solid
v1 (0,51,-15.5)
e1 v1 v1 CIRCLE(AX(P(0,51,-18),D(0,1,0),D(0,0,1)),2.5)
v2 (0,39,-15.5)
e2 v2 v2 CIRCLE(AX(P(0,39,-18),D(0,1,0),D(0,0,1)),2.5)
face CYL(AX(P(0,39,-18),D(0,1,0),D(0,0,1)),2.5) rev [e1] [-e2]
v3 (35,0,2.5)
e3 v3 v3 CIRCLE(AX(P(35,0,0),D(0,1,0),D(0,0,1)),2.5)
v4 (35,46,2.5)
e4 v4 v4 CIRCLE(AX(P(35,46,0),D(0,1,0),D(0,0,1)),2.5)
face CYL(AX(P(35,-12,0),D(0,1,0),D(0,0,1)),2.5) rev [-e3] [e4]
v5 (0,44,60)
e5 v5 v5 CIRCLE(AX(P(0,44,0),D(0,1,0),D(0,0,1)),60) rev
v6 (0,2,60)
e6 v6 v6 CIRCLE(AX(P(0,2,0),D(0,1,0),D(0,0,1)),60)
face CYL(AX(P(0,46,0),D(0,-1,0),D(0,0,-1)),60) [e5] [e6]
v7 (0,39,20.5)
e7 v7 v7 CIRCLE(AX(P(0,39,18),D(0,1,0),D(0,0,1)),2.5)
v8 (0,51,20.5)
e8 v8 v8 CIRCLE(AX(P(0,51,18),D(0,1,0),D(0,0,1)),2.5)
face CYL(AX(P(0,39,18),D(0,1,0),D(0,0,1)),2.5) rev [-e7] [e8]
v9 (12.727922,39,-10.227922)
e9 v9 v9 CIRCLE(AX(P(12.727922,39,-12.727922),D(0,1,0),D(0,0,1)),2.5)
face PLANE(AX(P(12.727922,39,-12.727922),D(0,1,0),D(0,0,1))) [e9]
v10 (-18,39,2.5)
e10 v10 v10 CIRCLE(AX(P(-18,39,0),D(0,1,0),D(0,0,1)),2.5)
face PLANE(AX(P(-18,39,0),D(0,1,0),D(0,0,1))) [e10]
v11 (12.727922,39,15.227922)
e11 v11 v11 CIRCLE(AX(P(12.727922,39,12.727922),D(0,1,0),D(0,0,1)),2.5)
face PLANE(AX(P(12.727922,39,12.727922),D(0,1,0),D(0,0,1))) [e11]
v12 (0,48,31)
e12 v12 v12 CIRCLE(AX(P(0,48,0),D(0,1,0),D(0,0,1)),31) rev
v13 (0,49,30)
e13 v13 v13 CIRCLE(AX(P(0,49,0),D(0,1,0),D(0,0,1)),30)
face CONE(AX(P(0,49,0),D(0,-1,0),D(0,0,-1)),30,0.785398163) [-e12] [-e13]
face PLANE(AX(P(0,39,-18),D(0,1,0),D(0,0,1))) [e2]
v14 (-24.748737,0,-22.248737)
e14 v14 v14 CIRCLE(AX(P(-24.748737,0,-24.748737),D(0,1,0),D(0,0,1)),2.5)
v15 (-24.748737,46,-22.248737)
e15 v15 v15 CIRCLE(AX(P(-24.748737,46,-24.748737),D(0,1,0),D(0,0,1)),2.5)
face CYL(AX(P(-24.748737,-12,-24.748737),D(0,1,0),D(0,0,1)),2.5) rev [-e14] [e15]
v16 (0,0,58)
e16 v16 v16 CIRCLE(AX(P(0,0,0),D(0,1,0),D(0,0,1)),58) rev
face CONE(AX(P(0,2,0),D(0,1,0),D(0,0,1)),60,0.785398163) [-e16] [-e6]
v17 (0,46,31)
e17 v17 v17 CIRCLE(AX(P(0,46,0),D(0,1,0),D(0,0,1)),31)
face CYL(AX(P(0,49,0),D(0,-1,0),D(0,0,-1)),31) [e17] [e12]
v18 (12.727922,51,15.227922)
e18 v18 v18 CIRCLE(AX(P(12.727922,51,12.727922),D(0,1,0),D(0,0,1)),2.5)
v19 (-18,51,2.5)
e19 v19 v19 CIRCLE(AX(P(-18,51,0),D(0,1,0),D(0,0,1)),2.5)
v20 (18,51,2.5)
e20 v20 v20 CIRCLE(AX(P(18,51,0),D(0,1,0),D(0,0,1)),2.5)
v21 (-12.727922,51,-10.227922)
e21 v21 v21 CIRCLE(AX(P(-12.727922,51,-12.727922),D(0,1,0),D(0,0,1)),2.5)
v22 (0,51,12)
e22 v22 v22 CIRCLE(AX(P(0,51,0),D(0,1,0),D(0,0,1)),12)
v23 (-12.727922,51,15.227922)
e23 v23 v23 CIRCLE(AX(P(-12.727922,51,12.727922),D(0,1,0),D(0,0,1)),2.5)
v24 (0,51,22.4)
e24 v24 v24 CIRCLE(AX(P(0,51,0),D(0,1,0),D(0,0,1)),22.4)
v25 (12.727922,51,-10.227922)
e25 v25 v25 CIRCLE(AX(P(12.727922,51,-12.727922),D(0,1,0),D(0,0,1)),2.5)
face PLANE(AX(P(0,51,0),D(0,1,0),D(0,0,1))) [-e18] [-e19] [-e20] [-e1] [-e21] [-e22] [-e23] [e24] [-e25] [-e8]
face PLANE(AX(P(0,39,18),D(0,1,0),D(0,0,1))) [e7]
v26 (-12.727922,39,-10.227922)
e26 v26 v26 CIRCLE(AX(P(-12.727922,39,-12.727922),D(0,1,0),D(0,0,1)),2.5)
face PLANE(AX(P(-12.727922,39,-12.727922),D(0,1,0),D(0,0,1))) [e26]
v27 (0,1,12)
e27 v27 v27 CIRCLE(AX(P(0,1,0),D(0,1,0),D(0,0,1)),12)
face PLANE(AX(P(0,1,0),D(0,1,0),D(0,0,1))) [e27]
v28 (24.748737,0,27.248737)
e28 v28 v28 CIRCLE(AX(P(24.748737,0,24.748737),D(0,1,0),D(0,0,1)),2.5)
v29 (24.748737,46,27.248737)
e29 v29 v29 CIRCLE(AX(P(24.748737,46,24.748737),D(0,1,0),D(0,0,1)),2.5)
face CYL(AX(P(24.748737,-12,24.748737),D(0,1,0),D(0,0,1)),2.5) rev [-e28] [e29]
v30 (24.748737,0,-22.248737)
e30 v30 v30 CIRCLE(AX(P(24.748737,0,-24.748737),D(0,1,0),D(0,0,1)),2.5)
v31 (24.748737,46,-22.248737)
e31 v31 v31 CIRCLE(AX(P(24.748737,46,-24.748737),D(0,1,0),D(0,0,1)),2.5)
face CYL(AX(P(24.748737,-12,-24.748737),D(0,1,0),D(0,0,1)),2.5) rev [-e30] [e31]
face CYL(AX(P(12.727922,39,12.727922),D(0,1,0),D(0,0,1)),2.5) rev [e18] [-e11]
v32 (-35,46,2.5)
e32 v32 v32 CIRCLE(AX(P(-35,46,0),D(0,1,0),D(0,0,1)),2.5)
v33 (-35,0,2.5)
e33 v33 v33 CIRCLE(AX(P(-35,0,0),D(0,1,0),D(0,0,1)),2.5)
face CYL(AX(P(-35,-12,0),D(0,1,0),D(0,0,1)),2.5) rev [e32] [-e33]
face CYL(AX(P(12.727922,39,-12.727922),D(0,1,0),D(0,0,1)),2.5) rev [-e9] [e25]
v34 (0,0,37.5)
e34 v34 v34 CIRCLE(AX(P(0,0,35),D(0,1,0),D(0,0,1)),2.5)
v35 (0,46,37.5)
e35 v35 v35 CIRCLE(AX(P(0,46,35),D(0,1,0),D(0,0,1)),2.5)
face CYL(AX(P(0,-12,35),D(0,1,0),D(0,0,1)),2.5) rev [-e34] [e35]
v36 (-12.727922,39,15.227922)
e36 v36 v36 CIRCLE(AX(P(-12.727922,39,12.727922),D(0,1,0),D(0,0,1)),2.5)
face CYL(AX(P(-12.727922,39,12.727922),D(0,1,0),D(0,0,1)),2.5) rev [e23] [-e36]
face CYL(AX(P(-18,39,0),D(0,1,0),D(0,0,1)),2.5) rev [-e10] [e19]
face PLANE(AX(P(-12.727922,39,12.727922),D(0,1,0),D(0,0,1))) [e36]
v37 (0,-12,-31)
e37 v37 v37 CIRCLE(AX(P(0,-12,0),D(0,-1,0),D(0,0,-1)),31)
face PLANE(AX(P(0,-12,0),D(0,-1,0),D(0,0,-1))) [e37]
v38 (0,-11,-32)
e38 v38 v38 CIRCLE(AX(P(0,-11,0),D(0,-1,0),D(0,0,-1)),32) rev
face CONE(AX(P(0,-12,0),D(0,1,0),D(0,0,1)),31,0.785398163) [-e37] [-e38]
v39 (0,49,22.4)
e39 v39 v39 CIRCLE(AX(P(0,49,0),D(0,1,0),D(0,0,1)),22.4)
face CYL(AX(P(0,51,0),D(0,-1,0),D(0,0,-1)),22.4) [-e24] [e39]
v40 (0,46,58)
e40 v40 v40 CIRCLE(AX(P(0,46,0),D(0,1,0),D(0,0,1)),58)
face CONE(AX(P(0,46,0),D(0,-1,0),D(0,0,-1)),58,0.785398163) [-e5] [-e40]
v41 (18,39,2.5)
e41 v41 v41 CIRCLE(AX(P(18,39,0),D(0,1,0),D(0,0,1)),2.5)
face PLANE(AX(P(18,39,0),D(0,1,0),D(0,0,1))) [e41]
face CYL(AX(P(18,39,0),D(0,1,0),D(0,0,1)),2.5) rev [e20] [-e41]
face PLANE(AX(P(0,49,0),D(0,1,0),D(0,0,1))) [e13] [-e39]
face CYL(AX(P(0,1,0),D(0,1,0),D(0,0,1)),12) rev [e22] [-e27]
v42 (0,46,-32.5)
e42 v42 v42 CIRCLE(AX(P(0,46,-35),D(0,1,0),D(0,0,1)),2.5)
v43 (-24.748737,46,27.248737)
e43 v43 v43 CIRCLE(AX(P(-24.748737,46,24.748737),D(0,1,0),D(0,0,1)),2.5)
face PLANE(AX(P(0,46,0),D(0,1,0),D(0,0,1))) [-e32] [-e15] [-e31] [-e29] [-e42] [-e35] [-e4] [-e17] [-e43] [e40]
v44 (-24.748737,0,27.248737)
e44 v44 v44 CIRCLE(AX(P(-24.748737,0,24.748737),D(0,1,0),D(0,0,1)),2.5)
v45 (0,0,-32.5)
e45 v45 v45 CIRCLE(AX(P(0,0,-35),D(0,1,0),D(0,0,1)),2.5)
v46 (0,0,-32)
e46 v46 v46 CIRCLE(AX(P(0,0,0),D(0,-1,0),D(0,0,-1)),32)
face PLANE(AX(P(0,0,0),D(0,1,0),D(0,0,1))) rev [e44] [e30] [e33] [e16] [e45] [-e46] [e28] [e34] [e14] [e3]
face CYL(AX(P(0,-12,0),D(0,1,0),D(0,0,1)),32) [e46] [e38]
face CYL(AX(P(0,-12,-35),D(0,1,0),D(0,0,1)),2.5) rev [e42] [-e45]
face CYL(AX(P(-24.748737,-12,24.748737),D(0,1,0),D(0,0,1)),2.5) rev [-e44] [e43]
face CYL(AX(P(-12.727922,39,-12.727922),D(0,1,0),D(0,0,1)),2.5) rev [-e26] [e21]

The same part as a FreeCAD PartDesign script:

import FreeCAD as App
import Part
import Sketcher
from FreeCAD import Vector
Q = App.Units.Quantity


def edges_at(feature, points):
    """Names of the edges that pass closest to the given points."""
    edges = feature.Shape.Edges
    near = lambda p: min(range(len(edges)), key=lambda i: edges[i].distToShape(Part.Vertex(*p))[0])
    return sorted({f"Edge{near(p) + 1}" for p in points})

doc = App.newDocument("Part")
body = doc.addObject("PartDesign::Body", "Body")

# Sketch on XZ plane
sketch1 = body.newObject("Sketcher::SketchObject", "Sketch")
sketch1.AttachmentSupport = (doc.getObject("XZ_Plane"), [""])
sketch1.MapMode = "FlatFace"
sketch1.addGeometry(Part.Circle(Vector(0, 0, 0), Vector(0, 0, 1), 60), False)
sketch1.addConstraint([
    Sketcher.Constraint("Coincident", 0, 3, -1, 1),
    Sketcher.Constraint("Diameter", 0, Q("120 mm")),
])
pad1 = body.newObject("PartDesign::Pad", "Pad")
pad1.Profile = sketch1
pad1.Length = 46
pad1.Reversed = True

# Sketch on XZ plane
sketch2 = body.newObject("Sketcher::SketchObject", "Sketch001")
sketch2.AttachmentSupport = (doc.getObject("XZ_Plane"), [""])
sketch2.MapMode = "FlatFace"
sketch2.addGeometry(Part.Circle(Vector(0, 0, 0), Vector(0, 0, 1), 32), False)
sketch2.addConstraint([
    Sketcher.Constraint("Coincident", 0, 3, -1, 1),
    Sketcher.Constraint("Diameter", 0, Q("64 mm")),
])
pad2 = body.newObject("PartDesign::Pad", "Pad001")
pad2.Profile = sketch2
pad2.Length = 12

# Sketch on XZ plane
sketch3 = body.newObject("Sketcher::SketchObject", "Sketch002")
sketch3.AttachmentSupport = (doc.getObject("XZ_Plane"), [""])
sketch3.MapMode = "FlatFace"
sketch3.AttachmentOffset = App.Placement(Vector(0, 0, -46), App.Rotation())
sketch3.addGeometry(Part.Circle(Vector(0, 0, 0), Vector(0, 0, 1), 31), False)
sketch3.addConstraint([
    Sketcher.Constraint("Coincident", 0, 3, -1, 1),
    Sketcher.Constraint("Diameter", 0, Q("62 mm")),
])
pad3 = body.newObject("PartDesign::Pad", "Pad002")
pad3.Profile = sketch3
pad3.Length = 3
pad3.Reversed = True

# Sketch on XZ plane
sketch4 = body.newObject("Sketcher::SketchObject", "Sketch003")
sketch4.AttachmentSupport = (doc.getObject("XZ_Plane"), [""])
sketch4.MapMode = "FlatFace"
sketch4.AttachmentOffset = App.Placement(Vector(0, 0, -49), App.Rotation())
sketch4.addGeometry(Part.Circle(Vector(0, 0, 0), Vector(0, 0, 1), 22), False)
sketch4.addConstraint([
    Sketcher.Constraint("Coincident", 0, 3, -1, 1),
    Sketcher.Constraint("Diameter", 0, Q("44.8 mm")),
])
pad4 = body.newObject("PartDesign::Pad", "Pad003")
pad4.Profile = sketch4
pad4.Length = 2
pad4.Reversed = True

# Sketch on XZ plane
sketch5 = body.newObject("Sketcher::SketchObject", "Sketch004")
sketch5.AttachmentSupport = (doc.getObject("XZ_Plane"), [""])
sketch5.MapMode = "FlatFace"
sketch5.AttachmentOffset = App.Placement(Vector(0, 0, -51), App.Rotation())
sketch5.addGeometry(Part.Circle(Vector(0, 0, 0), Vector(0, 0, 1), 12), False)
sketch5.addConstraint([
    Sketcher.Constraint("Coincident", 0, 3, -1, 1),
    Sketcher.Constraint("Diameter", 0, Q("24 mm")),
])
pocket1 = body.newObject("PartDesign::Pocket", "Pocket")
pocket1.Profile = sketch5
pocket1.Length = 50
pocket1.Reversed = True

# Sketch on XZ plane
sketch6 = body.newObject("Sketcher::SketchObject", "Sketch005")
sketch6.AttachmentSupport = (doc.getObject("XZ_Plane"), [""])
sketch6.MapMode = "FlatFace"
sketch6.AttachmentOffset = App.Placement(Vector(0, 0, -51), App.Rotation())
sketch6.addGeometry([
    Part.Circle(Vector(0, -18, 0), Vector(0, 0, 1), 2.5),  # 0
    Part.Circle(Vector(12.7, -12.7, 0), Vector(0, 0, 1), 2.5),  # 1
    Part.Circle(Vector(18, 0, 0), Vector(0, 0, 1), 2.5),  # 2
    Part.Circle(Vector(12.7, 12.7, 0), Vector(0, 0, 1), 2.5),  # 3
    Part.Circle(Vector(0, 18, 0), Vector(0, 0, 1), 2.5),  # 4
    Part.Circle(Vector(-12.7, 12.7, 0), Vector(0, 0, 1), 2.5),  # 5
    Part.Circle(Vector(-18, 0, 0), Vector(0, 0, 1), 2.5),  # 6
    Part.Circle(Vector(-12.7, -12.7, 0), Vector(0, 0, 1), 2.5),  # 7
], False)
sketch6.addConstraint([
    Sketcher.Constraint("Equal", 0, 1),
    Sketcher.Constraint("Equal", 1, 2),
    Sketcher.Constraint("Equal", 2, 3),
    Sketcher.Constraint("Equal", 3, 4),
    Sketcher.Constraint("Equal", 4, 5),
    Sketcher.Constraint("Equal", 5, 6),
    Sketcher.Constraint("Equal", 6, 7),
    Sketcher.Constraint("Symmetric", 0, 3, 4, 3, -1, 1),
    Sketcher.Constraint("Symmetric", 1, 3, 5, 3, -1, 1),
    Sketcher.Constraint("Symmetric", 2, 3, 6, 3, -1, 1),
    Sketcher.Constraint("Symmetric", 3, 3, 7, 3, -1, 1),
    Sketcher.Constraint("Symmetric", 3, 3, 5, 3, -2),
    Sketcher.Constraint("PointOnObject", 0, 3, -2),
    Sketcher.Constraint("PointOnObject", 2, 3, -1),
    Sketcher.Constraint("Diameter", 0, Q("5 mm")),
    Sketcher.Constraint("DistanceY", 0, 3, -1, 1, Q("18 mm")),
    Sketcher.Constraint("DistanceX", -1, 1, 2, 3, Q("18 mm")),
    Sketcher.Constraint("DistanceX", -1, 1, 1, 3, Q("12.727922 mm")),
    Sketcher.Constraint("DistanceY", 1, 3, -1, 1, Q("12.727922 mm")),
])
pocket2 = body.newObject("PartDesign::Pocket", "Pocket001")
pocket2.Profile = sketch6
pocket2.Length = 12
pocket2.Reversed = True

# Sketch on XZ plane
sketch7 = body.newObject("Sketcher::SketchObject", "Sketch006")
sketch7.AttachmentSupport = (doc.getObject("XZ_Plane"), [""])
sketch7.MapMode = "FlatFace"
sketch7.AttachmentOffset = App.Placement(Vector(0, 0, -46), App.Rotation())
sketch7.addGeometry([
    Part.Circle(Vector(0, -35, 0), Vector(0, 0, 1), 2.5),  # 0
    Part.Circle(Vector(24.7, -24.7, 0), Vector(0, 0, 1), 2.5),  # 1
    Part.Circle(Vector(35, 0, 0), Vector(0, 0, 1), 2.5),  # 2
    Part.Circle(Vector(24.7, 24.7, 0), Vector(0, 0, 1), 2.5),  # 3
    Part.Circle(Vector(0, 35, 0), Vector(0, 0, 1), 2.5),  # 4
    Part.Circle(Vector(-24.7, 24.7, 0), Vector(0, 0, 1), 2.5),  # 5
    Part.Circle(Vector(-35, 0, 0), Vector(0, 0, 1), 2.5),  # 6
    Part.Circle(Vector(-24.7, -24.7, 0), Vector(0, 0, 1), 2.5),  # 7
], False)
sketch7.addConstraint([
    Sketcher.Constraint("Equal", 0, 1),
    Sketcher.Constraint("Equal", 1, 2),
    Sketcher.Constraint("Equal", 2, 3),
    Sketcher.Constraint("Equal", 3, 4),
    Sketcher.Constraint("Equal", 4, 5),
    Sketcher.Constraint("Equal", 5, 6),
    Sketcher.Constraint("Equal", 6, 7),
    Sketcher.Constraint("Symmetric", 0, 3, 4, 3, -1, 1),
    Sketcher.Constraint("Symmetric", 1, 3, 5, 3, -1, 1),
    Sketcher.Constraint("Symmetric", 2, 3, 6, 3, -1, 1),
    Sketcher.Constraint("Symmetric", 3, 3, 7, 3, -1, 1),
    Sketcher.Constraint("Symmetric", 3, 3, 5, 3, -2),
    Sketcher.Constraint("PointOnObject", 0, 3, -2),
    Sketcher.Constraint("PointOnObject", 2, 3, -1),
    Sketcher.Constraint("Diameter", 0, Q("5 mm")),
    Sketcher.Constraint("DistanceY", 0, 3, -1, 1, Q("35 mm")),
    Sketcher.Constraint("DistanceX", -1, 1, 2, 3, Q("35 mm")),
    Sketcher.Constraint("DistanceX", -1, 1, 1, 3, Q("24.748737 mm")),
    Sketcher.Constraint("DistanceY", 1, 3, -1, 1, Q("24.748737 mm")),
])
pocket3 = body.newObject("PartDesign::Pocket", "Pocket002")
pocket3.Profile = sketch7
pocket3.Type = "ThroughAll"
pocket3.Midplane = True
doc.recompute()

chamfer = body.newObject("PartDesign::Chamfer", "Chamfer")
chamfer.Base = (pocket3, edges_at(pocket3, [(0, 0, -60), (0, 46, -60)]))
chamfer.Size = 2
doc.recompute()

chamfer2 = body.newObject("PartDesign::Chamfer", "Chamfer001")
chamfer2.Base = (chamfer, edges_at(chamfer, [(0, 49, -31), (0, -12, 32)]))
chamfer2.Size = 1

doc.recompute()
